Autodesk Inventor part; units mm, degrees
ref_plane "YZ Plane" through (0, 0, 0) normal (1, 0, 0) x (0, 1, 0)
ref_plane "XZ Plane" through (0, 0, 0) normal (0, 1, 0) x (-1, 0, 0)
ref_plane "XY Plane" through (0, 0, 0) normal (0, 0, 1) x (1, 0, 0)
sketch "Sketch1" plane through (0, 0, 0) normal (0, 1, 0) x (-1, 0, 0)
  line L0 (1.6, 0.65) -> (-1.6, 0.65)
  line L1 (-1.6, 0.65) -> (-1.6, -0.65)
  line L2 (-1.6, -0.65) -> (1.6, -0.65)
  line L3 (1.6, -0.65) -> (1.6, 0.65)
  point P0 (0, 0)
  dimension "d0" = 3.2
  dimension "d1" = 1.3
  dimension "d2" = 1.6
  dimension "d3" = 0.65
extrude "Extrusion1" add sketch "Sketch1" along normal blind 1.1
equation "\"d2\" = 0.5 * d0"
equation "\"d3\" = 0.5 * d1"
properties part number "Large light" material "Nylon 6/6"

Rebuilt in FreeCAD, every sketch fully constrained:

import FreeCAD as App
import Part
import Sketcher

V = App.Vector

doc = App.newDocument("Part")
body = doc.addObject("PartDesign::Body", "Body")

# Sketch on XZ plane
sketch1 = body.newObject("Sketcher::SketchObject", "Sketch")
sketch1.AttachmentSupport = (doc.getObject("XZ_Plane"), [""])
sketch1.MapMode = "FlatFace"
sketch1.addGeometry([
    Part.LineSegment(V(-1.6, -0.65, 0), V(-1.6, 0.65, 0)),
    Part.LineSegment(V(-1.6, 0.65, 0), V(1.6, 0.65, 0)),
    Part.LineSegment(V(1.6, 0.65, 0), V(1.6, -0.65, 0)),
    Part.LineSegment(V(1.6, -0.65, 0), V(-1.6, -0.65, 0)),
], False)
sketch1.addConstraint([
    Sketcher.Constraint("Coincident", 0, 2, 1, 1),
    Sketcher.Constraint("Coincident", 1, 2, 2, 1),
    Sketcher.Constraint("Coincident", 2, 2, 3, 1),
    Sketcher.Constraint("Coincident", 3, 2, 0, 1),
    Sketcher.Constraint("Vertical", 0),
    Sketcher.Constraint("Horizontal", 1),
    Sketcher.Constraint("Vertical", 2),
    Sketcher.Constraint("Horizontal", 3),
    Sketcher.Constraint("Symmetric", 0, 2, 2, 2, -1, 1),
    Sketcher.Constraint("DistanceX", 1, 1, 1, 2, 3.2),
    Sketcher.Constraint("DistanceY", 0, 1, 0, 2, 1.3),
])
pad1 = body.newObject("PartDesign::Pad", "Pad")
pad1.Profile = sketch1
pad1.Length = 1.1
pad1.Reversed = True

doc.recompute()
